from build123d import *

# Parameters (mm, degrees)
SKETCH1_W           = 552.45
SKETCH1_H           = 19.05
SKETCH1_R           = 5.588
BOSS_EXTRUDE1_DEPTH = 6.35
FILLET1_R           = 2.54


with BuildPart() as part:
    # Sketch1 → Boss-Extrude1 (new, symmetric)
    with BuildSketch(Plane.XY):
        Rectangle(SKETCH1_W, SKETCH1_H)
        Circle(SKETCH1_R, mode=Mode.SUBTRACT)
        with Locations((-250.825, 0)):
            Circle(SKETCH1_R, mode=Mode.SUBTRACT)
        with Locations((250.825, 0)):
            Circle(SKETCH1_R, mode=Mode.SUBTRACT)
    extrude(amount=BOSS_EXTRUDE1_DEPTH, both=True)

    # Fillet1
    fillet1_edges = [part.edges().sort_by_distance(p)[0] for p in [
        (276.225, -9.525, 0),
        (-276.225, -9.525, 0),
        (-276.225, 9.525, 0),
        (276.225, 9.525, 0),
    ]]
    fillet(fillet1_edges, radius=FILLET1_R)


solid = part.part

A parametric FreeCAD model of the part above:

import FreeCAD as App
import Part
import Sketcher
from FreeCAD import Vector
Q = App.Units.Quantity


def edges_at(feature, points):
    """Names of the edges that pass closest to the given points."""
    edges = feature.Shape.Edges
    near = lambda p: min(range(len(edges)), key=lambda i: edges[i].distToShape(Part.Vertex(*p))[0])
    return sorted({f"Edge{near(p) + 1}" for p in points})

doc = App.newDocument("Part")
body = doc.addObject("PartDesign::Body", "Body")

sketch1 = body.newObject("Sketcher::SketchObject", "Sketch")
sketch1.AttachmentSupport = (doc.getObject("XY_Plane"), [""])
sketch1.MapMode = "FlatFace"
sketch1.addGeometry([
    Part.LineSegment(Vector(-276, 10, 0), Vector(-276, -10, 0)),
    Part.LineSegment(Vector(-276, -10, 0), Vector(276, -10, 0)),
    Part.LineSegment(Vector(276, -10, 0), Vector(276, 10, 0)),
    Part.LineSegment(Vector(276, 10, 0), Vector(-276, 10, 0)),
    Part.Circle(Vector(-251, 0, 0), Vector(0, 0, 1), 6),
    Part.Circle(Vector(0, 0, 0), Vector(0, 0, 1), 6),
    Part.Circle(Vector(251, 0, 0), Vector(0, 0, 1), 6),
], False)
sketch1.addConstraint([
    Sketcher.Constraint("Coincident", 0, 2, 1, 1),
    Sketcher.Constraint("Coincident", 1, 2, 2, 1),
    Sketcher.Constraint("Coincident", 2, 2, 3, 1),
    Sketcher.Constraint("Coincident", 3, 2, 0, 1),
    Sketcher.Constraint("Vertical", 0),
    Sketcher.Constraint("Horizontal", 1),
    Sketcher.Constraint("Vertical", 2),
    Sketcher.Constraint("Horizontal", 3),
    Sketcher.Constraint("Coincident", 5, 3, -1, 1),
    Sketcher.Constraint("Equal", 4, 5),
    Sketcher.Constraint("Equal", 5, 6),
    Sketcher.Constraint("Symmetric", 4, 3, 6, 3, -1, 1),
    Sketcher.Constraint("Symmetric", 0, 2, 2, 2, -1, 1),
    Sketcher.Constraint("PointOnObject", 4, 3, -1),
    Sketcher.Constraint("Diameter", 4, Q("0.44 in")),
    Sketcher.Constraint("DistanceX", 0, 2, 4, 3, Q("1 in")),
    Sketcher.Constraint("DistanceX", 1, 1, 1, 2, Q("21.75 in")),
    Sketcher.Constraint("DistanceY", 0, 2, 0, 1, Q("0.75 in")),
])
pad1 = body.newObject("PartDesign::Pad", "Pad")
pad1.Profile = sketch1
pad1.Length = Q("0.5 in")
pad1.Midplane = True
doc.recompute()

fillet = body.newObject("PartDesign::Fillet", "Fillet")
fillet.Base = (pad1, edges_at(pad1, [
    (276.225, -9.525, 0),
    (-276.225, -9.525, 0),
    (-276.225, 9.525, 0),
    (276.225, 9.525, 0),
]))
fillet.Radius = Q("0.1 in")

doc.recompute()
